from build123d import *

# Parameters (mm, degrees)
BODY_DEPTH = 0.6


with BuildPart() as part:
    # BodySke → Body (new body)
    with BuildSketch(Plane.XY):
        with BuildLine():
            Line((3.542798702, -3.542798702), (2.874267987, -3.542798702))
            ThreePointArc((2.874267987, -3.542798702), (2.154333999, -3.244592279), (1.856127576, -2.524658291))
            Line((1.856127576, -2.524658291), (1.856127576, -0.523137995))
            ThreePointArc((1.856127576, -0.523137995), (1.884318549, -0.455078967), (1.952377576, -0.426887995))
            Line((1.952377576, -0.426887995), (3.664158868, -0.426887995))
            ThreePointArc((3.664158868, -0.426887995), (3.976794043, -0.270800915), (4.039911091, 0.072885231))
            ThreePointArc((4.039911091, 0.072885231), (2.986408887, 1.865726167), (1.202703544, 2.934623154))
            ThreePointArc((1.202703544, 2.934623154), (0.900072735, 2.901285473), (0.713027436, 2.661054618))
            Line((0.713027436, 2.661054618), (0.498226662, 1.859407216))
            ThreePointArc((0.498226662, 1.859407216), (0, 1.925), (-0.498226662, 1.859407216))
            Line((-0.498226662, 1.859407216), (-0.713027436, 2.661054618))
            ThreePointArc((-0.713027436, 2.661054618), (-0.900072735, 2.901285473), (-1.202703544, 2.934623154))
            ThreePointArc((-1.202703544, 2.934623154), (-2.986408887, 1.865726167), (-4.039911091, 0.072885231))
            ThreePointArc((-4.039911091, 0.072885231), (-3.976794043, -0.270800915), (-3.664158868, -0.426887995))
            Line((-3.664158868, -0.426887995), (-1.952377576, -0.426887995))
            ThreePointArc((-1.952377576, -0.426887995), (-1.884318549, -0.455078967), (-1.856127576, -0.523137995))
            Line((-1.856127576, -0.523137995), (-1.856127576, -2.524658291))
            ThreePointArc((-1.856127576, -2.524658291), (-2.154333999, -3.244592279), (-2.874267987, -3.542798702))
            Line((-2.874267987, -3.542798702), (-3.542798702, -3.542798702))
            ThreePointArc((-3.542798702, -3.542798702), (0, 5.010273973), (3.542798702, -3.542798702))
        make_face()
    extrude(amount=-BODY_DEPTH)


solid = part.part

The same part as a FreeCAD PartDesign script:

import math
import FreeCAD as App
import Part
import Sketcher
Q = App.Units.Quantity

doc = App.newDocument("Part")
body = doc.addObject("PartDesign::Body", "Body")

sketch1 = body.newObject("Sketcher::SketchObject", "Sketch")
sketch1.AttachmentSupport = (doc.getObject("XY_Plane"), [""])
sketch1.MapMode = "FlatFace"
sketch1.addGeometry(Part.LineSegment(App.Vector(2.874268, -3.542799, 0), App.Vector(3.542799, -3.542799, 0)), False)
sketch1.addGeometry(Part.ArcOfCircle(Part.Circle(App.Vector(0, 0, 0), App.Vector(0, 0, 1), 5.010274), math.radians(-45), math.radians(225)), False)
sketch1.addGeometry(Part.LineSegment(App.Vector(-3.542799, -3.542799, 0), App.Vector(-2.874268, -3.542799, 0)), False)
sketch1.addGeometry(Part.ArcOfCircle(Part.Circle(App.Vector(-2.874268, -2.524658, 0), App.Vector(0, 0, 1), 1.01814), math.radians(-90), math.radians(0)), False)
sketch1.addGeometry(Part.LineSegment(App.Vector(-1.856128, -2.524658, 0), App.Vector(-1.856128, -0.523138, 0)), False)
sketch1.addGeometry(Part.ArcOfCircle(Part.Circle(App.Vector(-1.952378, -0.523138, 0), App.Vector(0, 0, 1), 0.09625), math.radians(0.000001), math.radians(89.999999)), False)
sketch1.addGeometry(Part.LineSegment(App.Vector(-1.952378, -0.426888, 0), App.Vector(-3.664159, -0.426888, 0)), False)
sketch1.addGeometry(Part.ArcOfCircle(Part.Circle(App.Vector(-3.664159, -0.035748, 0), App.Vector(0, 0, 1), 0.39114), math.radians(163.875018), math.radians(270)), False)
sketch1.addGeometry(Part.ArcOfCircle(Part.Circle(App.Vector(0, -1.095084, 0), App.Vector(0, 0, 1), 4.205358), math.radians(106.618224), math.radians(163.875018)), False)
sketch1.addGeometry(Part.ArcOfCircle(Part.Circle(App.Vector(-1.09084, 2.55982, 0), App.Vector(0, 0, 1), 0.39114), math.radians(15), math.radians(106.618224)), False)
sketch1.addGeometry(Part.LineSegment(App.Vector(-0.713027, 2.661055, 0), App.Vector(-0.498227, 1.859407, 0)), False)
sketch1.addGeometry(Part.ArcOfCircle(Part.Circle(App.Vector(0, 0, 0), App.Vector(0, 0, 1), 1.925), math.radians(75), math.radians(105)), False)
sketch1.addGeometry(Part.LineSegment(App.Vector(0.498227, 1.859407, 0), App.Vector(0.713027, 2.661055, 0)), False)
sketch1.addGeometry(Part.ArcOfCircle(Part.Circle(App.Vector(1.09084, 2.55982, 0), App.Vector(0, 0, 1), 0.39114), math.radians(73.381776), math.radians(165)), False)
sketch1.addGeometry(Part.ArcOfCircle(Part.Circle(App.Vector(0, -1.095084, 0), App.Vector(0, 0, 1), 4.205358), math.radians(16.124982), math.radians(73.381776)), False)
sketch1.addGeometry(Part.ArcOfCircle(Part.Circle(App.Vector(3.664159, -0.035748, 0), App.Vector(0, 0, 1), 0.39114), math.radians(-90), math.radians(16.124982)), False)
sketch1.addGeometry(Part.LineSegment(App.Vector(3.664159, -0.426888, 0), App.Vector(1.952378, -0.426888, 0)), False)
sketch1.addGeometry(Part.ArcOfCircle(Part.Circle(App.Vector(1.952378, -0.523138, 0), App.Vector(0, 0, 1), 0.09625), math.radians(90.000001), math.radians(179.999999)), False)
sketch1.addGeometry(Part.LineSegment(App.Vector(1.856128, -0.523138, 0), App.Vector(1.856128, -2.524658, 0)), False)
sketch1.addGeometry(Part.ArcOfCircle(Part.Circle(App.Vector(2.874268, -2.524658, 0), App.Vector(0, 0, 1), 1.01814), math.radians(-180), math.radians(-90)), False)
sketch1.addConstraint(Sketcher.Constraint("Coincident", 0, 2, 1, 1))
sketch1.addConstraint(Sketcher.Constraint("Coincident", 1, 2, 2, 1))
sketch1.addConstraint(Sketcher.Constraint("Tangent", 2, 2, 3, 1))
sketch1.addConstraint(Sketcher.Constraint("Tangent", 3, 2, 4, 1))
sketch1.addConstraint(Sketcher.Constraint("Tangent", 4, 2, 5, 1))
sketch1.addConstraint(Sketcher.Constraint("Tangent", 5, 2, 6, 1))
sketch1.addConstraint(Sketcher.Constraint("Tangent", 6, 2, 7, 2))
sketch1.addConstraint(Sketcher.Constraint("Tangent", 7, 1, 8, 2))
sketch1.addConstraint(Sketcher.Constraint("Tangent", 8, 1, 9, 2))
sketch1.addConstraint(Sketcher.Constraint("Tangent", 9, 1, 10, 1))
sketch1.addConstraint(Sketcher.Constraint("Coincident", 10, 2, 11, 2))
sketch1.addConstraint(Sketcher.Constraint("Coincident", 11, 1, 12, 1))
sketch1.addConstraint(Sketcher.Constraint("Tangent", 12, 2, 13, 2))
sketch1.addConstraint(Sketcher.Constraint("Tangent", 13, 1, 14, 2))
sketch1.addConstraint(Sketcher.Constraint("Tangent", 14, 1, 15, 2))
sketch1.addConstraint(Sketcher.Constraint("Tangent", 15, 1, 16, 1))
sketch1.addConstraint(Sketcher.Constraint("Tangent", 16, 2, 17, 1))
sketch1.addConstraint(Sketcher.Constraint("Tangent", 17, 2, 18, 1))
sketch1.addConstraint(Sketcher.Constraint("Tangent", 18, 2, 19, 1))
sketch1.addConstraint(Sketcher.Constraint("Tangent", 19, 2, 0, 1))
sketch1.addConstraint(Sketcher.Constraint("Horizontal", 0))
sketch1.addConstraint(Sketcher.Constraint("Horizontal", 2))
sketch1.addConstraint(Sketcher.Constraint("Vertical", 4))
sketch1.addConstraint(Sketcher.Constraint("Horizontal", 6))
sketch1.addConstraint(Sketcher.Constraint("Horizontal", 16))
sketch1.addConstraint(Sketcher.Constraint("Vertical", 18))
sketch1.addConstraint(Sketcher.Constraint("Coincident", 1, 3, -1, 1))
sketch1.addConstraint(Sketcher.Constraint("Coincident", 11, 3, -1, 1))
sketch1.addConstraint(Sketcher.Constraint("Coincident", 14, 3, 8, 3))
sketch1.addConstraint(Sketcher.Constraint("Equal", 7, 9))
sketch1.addConstraint(Sketcher.Constraint("Equal", 9, 13))
sketch1.addConstraint(Sketcher.Constraint("Equal", 8, 14))
sketch1.addConstraint(Sketcher.Constraint("Equal", 13, 15))
sketch1.addConstraint(Sketcher.Constraint("Equal", 5, 17))
sketch1.addConstraint(Sketcher.Constraint("Equal", 3, 19))
sketch1.addConstraint(Sketcher.Constraint("Symmetric", 9, 3, 13, 3, -2))
sketch1.addConstraint(Sketcher.Constraint("Symmetric", 5, 3, 17, 3, -2))
sketch1.addConstraint(Sketcher.Constraint("Horizontal", 3, 3, 19, 3))
sketch1.addConstraint(Sketcher.Constraint("Horizontal", 10, 2, 11, 1))
sketch1.addConstraint(Sketcher.Constraint("Angle", 10, Q("-75 deg")))
sketch1.addConstraint(Sketcher.Constraint("Radius", 11, Q("1.925 mm")))
sketch1.addConstraint(Sketcher.Constraint("Radius", 3, Q("1.01814 mm")))
sketch1.addConstraint(Sketcher.Constraint("Radius", 5, Q("0.09625 mm")))
sketch1.addConstraint(Sketcher.Constraint("Radius", 7, Q("0.39114 mm")))
sketch1.addConstraint(Sketcher.Constraint("Radius", 1, Q("5.010274 mm")))
sketch1.addConstraint(Sketcher.Constraint("Radius", 8, Q("4.205358 mm")))
sketch1.addConstraint(Sketcher.Constraint("DistanceX", 0, 1, 0, 2, Q("0.668531 mm")))
sketch1.addConstraint(Sketcher.Constraint("DistanceX", 6, 2, 6, 1, Q("1.711781 mm")))
sketch1.addConstraint(Sketcher.Constraint("DistanceY", 4, 1, 4, 2, Q("2.00152 mm")))
sketch1.addConstraint(Sketcher.Constraint("DistanceX", -1, 1, 0, 2, Q("3.542799 mm")))
sketch1.addConstraint(Sketcher.Constraint("DistanceX", 9, 3, -1, 1, Q("1.09084 mm")))
pad1 = body.newObject("PartDesign::Pad", "Pad")
pad1.Profile = sketch1
pad1.Length = 0.6
pad1.Reversed = True

doc.recompute()
